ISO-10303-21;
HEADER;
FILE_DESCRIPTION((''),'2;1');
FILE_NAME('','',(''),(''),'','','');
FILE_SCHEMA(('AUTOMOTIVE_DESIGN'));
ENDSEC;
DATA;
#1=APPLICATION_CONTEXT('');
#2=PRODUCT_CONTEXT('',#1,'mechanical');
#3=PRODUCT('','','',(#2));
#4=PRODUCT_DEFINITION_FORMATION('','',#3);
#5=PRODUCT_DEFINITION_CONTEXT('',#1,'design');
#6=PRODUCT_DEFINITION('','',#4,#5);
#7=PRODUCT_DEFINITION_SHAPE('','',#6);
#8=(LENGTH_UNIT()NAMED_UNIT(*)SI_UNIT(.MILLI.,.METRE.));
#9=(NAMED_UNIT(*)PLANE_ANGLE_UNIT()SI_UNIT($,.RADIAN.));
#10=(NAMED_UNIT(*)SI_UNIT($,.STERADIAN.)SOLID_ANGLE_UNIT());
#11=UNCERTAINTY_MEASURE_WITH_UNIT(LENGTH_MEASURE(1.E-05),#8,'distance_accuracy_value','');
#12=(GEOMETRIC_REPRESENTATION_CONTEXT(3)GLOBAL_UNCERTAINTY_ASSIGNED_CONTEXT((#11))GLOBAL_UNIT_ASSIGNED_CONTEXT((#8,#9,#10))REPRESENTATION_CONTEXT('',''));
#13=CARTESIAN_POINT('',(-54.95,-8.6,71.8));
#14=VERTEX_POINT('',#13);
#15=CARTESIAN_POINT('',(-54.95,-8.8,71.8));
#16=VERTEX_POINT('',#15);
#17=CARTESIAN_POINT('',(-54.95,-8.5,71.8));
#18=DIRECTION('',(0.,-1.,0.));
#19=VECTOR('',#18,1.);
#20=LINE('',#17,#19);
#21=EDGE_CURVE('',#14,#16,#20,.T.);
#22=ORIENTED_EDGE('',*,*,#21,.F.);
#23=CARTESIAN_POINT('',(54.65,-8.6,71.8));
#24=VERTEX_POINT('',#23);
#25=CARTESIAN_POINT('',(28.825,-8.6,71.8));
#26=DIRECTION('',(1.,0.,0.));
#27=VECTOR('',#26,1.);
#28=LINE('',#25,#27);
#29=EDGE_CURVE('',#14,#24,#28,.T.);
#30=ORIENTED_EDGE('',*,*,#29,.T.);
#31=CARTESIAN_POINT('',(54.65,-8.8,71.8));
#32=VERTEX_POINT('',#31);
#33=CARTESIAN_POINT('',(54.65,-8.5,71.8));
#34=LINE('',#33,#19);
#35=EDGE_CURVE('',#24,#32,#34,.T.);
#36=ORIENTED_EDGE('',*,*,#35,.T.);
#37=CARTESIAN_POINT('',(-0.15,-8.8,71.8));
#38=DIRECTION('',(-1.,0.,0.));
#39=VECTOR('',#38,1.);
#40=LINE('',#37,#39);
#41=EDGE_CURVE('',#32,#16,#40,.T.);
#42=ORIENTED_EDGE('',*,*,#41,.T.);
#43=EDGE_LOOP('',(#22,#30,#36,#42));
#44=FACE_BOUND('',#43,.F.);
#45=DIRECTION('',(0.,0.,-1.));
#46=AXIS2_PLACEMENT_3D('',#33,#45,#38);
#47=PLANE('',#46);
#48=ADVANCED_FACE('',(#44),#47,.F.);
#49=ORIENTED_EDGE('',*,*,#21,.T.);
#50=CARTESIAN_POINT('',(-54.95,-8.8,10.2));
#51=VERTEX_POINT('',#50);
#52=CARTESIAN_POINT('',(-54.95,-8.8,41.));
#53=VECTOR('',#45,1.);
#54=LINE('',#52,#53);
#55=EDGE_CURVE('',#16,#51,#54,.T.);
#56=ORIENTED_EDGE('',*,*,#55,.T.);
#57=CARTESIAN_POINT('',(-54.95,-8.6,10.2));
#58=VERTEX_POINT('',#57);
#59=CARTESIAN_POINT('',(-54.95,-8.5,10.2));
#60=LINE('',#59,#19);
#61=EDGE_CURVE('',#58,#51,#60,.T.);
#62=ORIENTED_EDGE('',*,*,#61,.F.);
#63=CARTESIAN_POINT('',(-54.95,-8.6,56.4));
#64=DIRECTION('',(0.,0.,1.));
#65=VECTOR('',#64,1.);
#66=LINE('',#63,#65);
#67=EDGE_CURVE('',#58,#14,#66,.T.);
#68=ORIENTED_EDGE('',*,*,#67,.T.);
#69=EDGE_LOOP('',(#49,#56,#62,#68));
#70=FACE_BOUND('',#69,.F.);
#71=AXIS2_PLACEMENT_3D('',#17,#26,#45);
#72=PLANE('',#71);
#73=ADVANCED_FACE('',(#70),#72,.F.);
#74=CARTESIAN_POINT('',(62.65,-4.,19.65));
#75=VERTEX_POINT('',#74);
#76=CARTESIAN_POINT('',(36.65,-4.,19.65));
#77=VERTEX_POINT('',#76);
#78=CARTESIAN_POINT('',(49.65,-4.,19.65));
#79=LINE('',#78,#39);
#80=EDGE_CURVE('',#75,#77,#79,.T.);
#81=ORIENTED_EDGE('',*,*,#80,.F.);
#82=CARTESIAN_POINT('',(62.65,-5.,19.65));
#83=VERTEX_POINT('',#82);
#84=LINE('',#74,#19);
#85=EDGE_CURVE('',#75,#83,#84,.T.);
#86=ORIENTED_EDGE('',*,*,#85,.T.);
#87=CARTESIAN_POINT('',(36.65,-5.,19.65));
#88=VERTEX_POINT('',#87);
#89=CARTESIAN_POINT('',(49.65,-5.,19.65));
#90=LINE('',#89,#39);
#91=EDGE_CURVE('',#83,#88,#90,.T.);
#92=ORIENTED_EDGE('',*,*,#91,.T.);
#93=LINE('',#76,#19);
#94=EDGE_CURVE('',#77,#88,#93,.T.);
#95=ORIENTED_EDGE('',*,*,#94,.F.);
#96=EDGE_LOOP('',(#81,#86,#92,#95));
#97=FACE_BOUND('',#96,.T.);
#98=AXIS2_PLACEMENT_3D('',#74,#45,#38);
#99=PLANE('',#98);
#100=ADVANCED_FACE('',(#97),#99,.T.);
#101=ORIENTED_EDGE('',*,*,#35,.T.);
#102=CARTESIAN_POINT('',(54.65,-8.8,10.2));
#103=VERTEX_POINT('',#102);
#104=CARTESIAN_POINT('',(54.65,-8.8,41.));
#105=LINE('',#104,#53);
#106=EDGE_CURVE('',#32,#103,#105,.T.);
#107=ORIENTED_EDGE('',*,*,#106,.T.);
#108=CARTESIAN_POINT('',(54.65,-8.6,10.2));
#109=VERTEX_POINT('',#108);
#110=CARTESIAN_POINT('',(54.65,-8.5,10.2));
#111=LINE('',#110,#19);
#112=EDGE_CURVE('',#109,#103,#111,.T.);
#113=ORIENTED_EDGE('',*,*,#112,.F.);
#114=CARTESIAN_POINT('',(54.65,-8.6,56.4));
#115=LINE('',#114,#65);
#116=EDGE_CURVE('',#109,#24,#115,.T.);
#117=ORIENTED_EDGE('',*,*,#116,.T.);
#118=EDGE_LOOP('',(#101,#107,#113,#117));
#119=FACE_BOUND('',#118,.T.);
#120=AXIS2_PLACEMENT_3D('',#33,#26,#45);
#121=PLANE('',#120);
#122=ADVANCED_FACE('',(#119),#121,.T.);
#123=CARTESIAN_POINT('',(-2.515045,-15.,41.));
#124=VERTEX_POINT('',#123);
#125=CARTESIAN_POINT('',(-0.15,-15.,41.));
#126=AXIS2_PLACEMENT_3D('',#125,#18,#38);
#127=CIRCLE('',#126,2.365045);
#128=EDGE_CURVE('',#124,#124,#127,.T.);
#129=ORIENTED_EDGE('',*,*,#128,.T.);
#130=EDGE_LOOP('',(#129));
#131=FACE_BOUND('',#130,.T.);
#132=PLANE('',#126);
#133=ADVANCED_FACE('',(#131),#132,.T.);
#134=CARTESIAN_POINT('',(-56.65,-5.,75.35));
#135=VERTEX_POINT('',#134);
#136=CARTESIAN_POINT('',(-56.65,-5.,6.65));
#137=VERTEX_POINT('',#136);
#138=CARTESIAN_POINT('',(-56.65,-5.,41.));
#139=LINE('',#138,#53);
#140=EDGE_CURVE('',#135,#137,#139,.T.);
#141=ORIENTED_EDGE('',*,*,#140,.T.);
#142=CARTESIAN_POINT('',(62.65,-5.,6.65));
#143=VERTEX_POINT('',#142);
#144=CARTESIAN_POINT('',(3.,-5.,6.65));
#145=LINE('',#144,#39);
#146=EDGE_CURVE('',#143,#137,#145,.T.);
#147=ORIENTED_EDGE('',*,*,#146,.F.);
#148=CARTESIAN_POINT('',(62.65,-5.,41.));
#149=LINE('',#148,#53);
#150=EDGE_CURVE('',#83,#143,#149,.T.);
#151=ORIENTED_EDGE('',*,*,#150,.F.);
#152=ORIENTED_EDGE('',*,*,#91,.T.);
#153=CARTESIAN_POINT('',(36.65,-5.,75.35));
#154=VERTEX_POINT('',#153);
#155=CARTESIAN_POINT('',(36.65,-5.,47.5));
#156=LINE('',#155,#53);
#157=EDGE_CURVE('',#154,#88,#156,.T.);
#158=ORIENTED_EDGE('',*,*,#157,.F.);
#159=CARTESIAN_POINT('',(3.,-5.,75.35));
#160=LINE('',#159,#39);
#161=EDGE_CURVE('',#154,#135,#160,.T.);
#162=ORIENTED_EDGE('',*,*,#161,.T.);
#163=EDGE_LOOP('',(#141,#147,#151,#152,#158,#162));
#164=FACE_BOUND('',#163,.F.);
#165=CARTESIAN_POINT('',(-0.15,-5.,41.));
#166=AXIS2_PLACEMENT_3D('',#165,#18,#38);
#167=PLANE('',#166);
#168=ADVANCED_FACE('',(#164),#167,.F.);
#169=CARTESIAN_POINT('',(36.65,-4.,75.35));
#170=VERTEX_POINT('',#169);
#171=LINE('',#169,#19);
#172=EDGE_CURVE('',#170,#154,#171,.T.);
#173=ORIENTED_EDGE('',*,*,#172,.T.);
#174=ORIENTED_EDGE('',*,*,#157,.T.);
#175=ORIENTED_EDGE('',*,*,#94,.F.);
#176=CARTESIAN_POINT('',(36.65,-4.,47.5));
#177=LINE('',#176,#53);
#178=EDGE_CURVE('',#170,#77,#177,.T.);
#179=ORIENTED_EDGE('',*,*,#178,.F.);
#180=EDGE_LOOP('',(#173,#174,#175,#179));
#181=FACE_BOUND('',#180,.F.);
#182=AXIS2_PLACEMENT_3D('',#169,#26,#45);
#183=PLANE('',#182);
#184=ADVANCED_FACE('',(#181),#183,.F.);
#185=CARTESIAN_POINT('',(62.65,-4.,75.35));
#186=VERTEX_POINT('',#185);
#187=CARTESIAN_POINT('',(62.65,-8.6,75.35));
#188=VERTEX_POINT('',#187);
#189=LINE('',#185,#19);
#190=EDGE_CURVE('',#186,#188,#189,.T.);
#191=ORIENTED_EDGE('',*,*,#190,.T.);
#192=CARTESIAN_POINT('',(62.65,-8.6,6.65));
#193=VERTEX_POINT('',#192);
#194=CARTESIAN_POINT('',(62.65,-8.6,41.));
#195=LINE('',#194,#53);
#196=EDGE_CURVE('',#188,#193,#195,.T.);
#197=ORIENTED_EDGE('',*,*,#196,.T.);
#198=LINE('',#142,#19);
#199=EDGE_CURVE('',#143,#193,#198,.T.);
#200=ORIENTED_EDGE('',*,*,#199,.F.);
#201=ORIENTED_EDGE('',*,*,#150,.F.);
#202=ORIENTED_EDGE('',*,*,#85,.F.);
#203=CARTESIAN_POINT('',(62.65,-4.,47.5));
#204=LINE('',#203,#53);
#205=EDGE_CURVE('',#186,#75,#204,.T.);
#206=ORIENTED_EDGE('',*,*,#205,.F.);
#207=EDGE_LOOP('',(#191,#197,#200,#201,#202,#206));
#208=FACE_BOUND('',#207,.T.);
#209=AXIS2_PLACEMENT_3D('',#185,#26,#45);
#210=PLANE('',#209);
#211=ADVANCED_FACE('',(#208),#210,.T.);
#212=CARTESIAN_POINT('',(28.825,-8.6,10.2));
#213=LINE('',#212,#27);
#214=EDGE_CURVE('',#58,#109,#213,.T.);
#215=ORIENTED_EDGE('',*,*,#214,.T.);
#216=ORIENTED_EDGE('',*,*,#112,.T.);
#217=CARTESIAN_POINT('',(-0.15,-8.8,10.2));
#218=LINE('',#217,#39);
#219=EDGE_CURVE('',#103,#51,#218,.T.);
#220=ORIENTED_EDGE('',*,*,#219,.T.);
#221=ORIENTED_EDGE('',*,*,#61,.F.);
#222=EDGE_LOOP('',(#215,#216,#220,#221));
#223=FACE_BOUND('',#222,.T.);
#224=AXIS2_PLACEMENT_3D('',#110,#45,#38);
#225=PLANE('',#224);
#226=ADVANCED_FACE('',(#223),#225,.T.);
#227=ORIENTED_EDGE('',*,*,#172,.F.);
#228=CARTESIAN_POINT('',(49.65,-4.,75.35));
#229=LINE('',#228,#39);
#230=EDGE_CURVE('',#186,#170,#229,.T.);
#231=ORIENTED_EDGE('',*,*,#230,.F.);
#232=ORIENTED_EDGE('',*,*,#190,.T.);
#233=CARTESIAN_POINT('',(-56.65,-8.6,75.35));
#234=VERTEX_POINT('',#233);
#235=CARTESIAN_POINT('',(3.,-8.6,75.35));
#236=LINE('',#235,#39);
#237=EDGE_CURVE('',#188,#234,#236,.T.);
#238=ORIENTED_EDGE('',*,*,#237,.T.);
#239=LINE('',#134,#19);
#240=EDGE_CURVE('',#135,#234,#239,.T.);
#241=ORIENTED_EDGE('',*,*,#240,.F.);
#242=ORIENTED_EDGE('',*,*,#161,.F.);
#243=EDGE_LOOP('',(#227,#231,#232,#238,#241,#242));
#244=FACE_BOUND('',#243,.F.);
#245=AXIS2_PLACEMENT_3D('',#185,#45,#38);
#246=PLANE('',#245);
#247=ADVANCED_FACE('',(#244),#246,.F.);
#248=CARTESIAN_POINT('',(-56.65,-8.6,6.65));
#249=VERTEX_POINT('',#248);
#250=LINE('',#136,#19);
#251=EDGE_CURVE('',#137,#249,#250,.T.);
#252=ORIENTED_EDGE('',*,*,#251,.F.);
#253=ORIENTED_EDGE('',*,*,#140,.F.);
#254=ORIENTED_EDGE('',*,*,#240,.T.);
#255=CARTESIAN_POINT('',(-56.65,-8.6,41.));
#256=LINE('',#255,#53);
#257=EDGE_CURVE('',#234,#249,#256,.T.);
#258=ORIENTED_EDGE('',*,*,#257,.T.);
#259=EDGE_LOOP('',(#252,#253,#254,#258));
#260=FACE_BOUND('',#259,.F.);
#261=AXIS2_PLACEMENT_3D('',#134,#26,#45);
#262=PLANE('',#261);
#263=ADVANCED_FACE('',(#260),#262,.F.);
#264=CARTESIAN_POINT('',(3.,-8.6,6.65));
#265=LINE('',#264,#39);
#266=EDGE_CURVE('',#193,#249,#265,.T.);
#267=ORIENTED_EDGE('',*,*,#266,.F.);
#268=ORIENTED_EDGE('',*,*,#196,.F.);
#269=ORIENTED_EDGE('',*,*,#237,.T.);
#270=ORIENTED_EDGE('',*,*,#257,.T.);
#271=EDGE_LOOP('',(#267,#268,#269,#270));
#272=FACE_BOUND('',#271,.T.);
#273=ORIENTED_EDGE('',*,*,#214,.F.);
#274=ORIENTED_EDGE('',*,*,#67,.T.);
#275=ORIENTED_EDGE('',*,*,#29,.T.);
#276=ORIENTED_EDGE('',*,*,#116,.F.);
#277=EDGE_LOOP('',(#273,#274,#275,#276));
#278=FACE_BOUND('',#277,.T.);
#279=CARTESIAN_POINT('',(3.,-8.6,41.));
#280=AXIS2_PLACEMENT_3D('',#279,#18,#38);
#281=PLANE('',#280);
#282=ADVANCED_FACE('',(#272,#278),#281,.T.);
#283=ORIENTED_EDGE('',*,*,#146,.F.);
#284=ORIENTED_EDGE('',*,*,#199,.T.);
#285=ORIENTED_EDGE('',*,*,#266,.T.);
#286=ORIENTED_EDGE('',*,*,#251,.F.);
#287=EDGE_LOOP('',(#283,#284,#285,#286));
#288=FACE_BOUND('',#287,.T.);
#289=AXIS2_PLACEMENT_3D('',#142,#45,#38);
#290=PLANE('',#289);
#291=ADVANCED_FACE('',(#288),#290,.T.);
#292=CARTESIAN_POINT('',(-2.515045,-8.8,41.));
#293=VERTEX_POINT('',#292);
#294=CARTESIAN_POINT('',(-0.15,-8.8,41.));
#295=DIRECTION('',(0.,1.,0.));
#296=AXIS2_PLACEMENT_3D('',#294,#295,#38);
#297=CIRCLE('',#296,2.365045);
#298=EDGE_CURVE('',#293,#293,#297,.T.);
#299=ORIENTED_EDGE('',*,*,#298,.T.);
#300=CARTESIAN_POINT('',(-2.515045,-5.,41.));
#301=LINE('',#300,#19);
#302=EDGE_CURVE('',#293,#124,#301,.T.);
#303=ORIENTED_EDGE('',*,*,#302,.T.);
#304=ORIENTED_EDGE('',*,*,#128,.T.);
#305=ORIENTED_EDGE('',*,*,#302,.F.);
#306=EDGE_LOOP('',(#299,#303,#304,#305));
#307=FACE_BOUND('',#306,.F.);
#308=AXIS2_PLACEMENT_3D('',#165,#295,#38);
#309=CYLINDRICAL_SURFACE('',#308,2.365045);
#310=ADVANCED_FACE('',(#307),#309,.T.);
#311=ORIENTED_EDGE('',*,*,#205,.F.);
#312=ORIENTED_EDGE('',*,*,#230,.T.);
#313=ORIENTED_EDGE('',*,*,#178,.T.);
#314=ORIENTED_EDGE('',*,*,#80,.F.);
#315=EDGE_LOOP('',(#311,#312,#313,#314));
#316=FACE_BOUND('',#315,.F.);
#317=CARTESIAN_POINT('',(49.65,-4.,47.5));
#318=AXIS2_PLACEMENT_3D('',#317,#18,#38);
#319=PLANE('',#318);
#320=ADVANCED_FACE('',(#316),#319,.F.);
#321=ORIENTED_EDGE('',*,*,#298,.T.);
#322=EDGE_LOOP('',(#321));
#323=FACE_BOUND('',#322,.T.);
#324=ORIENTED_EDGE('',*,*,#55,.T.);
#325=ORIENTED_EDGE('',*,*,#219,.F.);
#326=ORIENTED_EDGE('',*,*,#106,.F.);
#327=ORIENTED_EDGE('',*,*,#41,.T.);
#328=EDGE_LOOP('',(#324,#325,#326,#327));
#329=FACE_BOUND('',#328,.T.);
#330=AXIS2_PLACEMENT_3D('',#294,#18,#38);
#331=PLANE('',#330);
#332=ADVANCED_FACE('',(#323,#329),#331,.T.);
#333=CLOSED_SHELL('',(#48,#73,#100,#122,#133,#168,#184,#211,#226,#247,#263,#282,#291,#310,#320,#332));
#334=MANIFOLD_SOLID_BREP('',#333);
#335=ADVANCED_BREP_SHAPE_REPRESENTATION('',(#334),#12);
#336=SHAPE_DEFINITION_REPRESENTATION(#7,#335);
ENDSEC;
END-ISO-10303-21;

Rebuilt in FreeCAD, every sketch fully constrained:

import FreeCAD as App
import Part
import Sketcher

V = App.Vector


def add_polygon(sketch, points):
    """Adds a closed chain of lines whose ends are joined by coincident constraints."""
    first, n = sketch.GeometryCount, len(points)
    for a, b in zip(points, points[1:] + points[:1]):
        sketch.addGeometry(Part.LineSegment(App.Vector(*a, 0), App.Vector(*b, 0)), False)
    for i in range(n):
        sketch.addConstraint(Sketcher.Constraint("Coincident", first + i, 2, first + (i + 1) % n, 1))

doc = App.newDocument("Part")
body = doc.addObject("PartDesign::Body", "Body")

# Sketch on XZ plane
sketch1 = body.newObject("Sketcher::SketchObject", "Sketch")
sketch1.AttachmentSupport = (doc.getObject("XZ_Plane"), [""])
sketch1.MapMode = "FlatFace"
add_polygon(sketch1, [(-60, 34), (-60, -34), (60, -34), (60, 34)])  # lines 0-3
sketch1.addConstraint(Sketcher.Constraint("Vertical", 0))
sketch1.addConstraint(Sketcher.Constraint("Horizontal", 1))
sketch1.addConstraint(Sketcher.Constraint("Vertical", 2))
sketch1.addConstraint(Sketcher.Constraint("Horizontal", 3))
sketch1.addConstraint(Sketcher.Constraint("Symmetric", 0, 2, 2, 2, -1, 1))
sketch1.addConstraint(Sketcher.Constraint("DistanceX", 1, 1, 1, 2, 119.3))
sketch1.addConstraint(Sketcher.Constraint("DistanceY", 0, 2, 0, 1, 68.7))
pad1 = body.newObject("PartDesign::Pad", "Pad")
pad1.Profile = sketch1
pad1.Length = 3.6

# Sketch on XZ plane
sketch2 = body.newObject("Sketcher::SketchObject", "Sketch001")
sketch2.AttachmentSupport = (doc.getObject("XZ_Plane"), [""])
sketch2.MapMode = "FlatFace"
sketch2.AttachmentOffset = App.Placement(V(0, 0, 3.5), App.Rotation())
add_polygon(sketch2, [(-52, 31), (-52, -31), (58, -31), (58, 31)])  # lines 0-3
sketch2.addConstraint(Sketcher.Constraint("Vertical", 0))
sketch2.addConstraint(Sketcher.Constraint("Horizontal", 1))
sketch2.addConstraint(Sketcher.Constraint("Vertical", 2))
sketch2.addConstraint(Sketcher.Constraint("Horizontal", 3))
sketch2.addConstraint(Sketcher.Constraint("DistanceX", 1, 1, 1, 2, 109.6))
sketch2.addConstraint(Sketcher.Constraint("DistanceY", 0, 2, 0, 1, 61.6))
sketch2.addConstraint(Sketcher.Constraint("DistanceY", 0, 2, -1, 1, 30.8))
sketch2.addConstraint(Sketcher.Constraint("DistanceX", 0, 2, -1, 1, 51.65))
pad2 = body.newObject("PartDesign::Pad", "Pad001")
pad2.Profile = sketch2
pad2.Length = 0.3

# Sketch on XZ plane
sketch3 = body.newObject("Sketcher::SketchObject", "Sketch002")
sketch3.AttachmentSupport = (doc.getObject("XZ_Plane"), [""])
sketch3.MapMode = "FlatFace"
sketch3.AttachmentOffset = App.Placement(V(0, 0, -1), App.Rotation())
add_polygon(sketch3, [(-60, 21), (-60, -34), (-34, -34), (-34, 21)])  # lines 0-3
sketch3.addConstraint(Sketcher.Constraint("Vertical", 0))
sketch3.addConstraint(Sketcher.Constraint("Horizontal", 1))
sketch3.addConstraint(Sketcher.Constraint("Vertical", 2))
sketch3.addConstraint(Sketcher.Constraint("Horizontal", 3))
sketch3.addConstraint(Sketcher.Constraint("DistanceX", 1, 1, 1, 2, 26.0))
sketch3.addConstraint(Sketcher.Constraint("DistanceY", 0, 2, 0, 1, 55.7))
sketch3.addConstraint(Sketcher.Constraint("DistanceX", 0, 2, -1, 1, 59.65))
sketch3.addConstraint(Sketcher.Constraint("DistanceY", 0, 2, -1, 1, 34.35))
pad3 = body.newObject("PartDesign::Pad", "Pad002")
pad3.Profile = sketch3
pad3.Length = 1

# Sketch on XZ plane
sketch4 = body.newObject("Sketcher::SketchObject", "Sketch003")
sketch4.AttachmentSupport = (doc.getObject("XZ_Plane"), [""])
sketch4.MapMode = "FlatFace"
sketch4.addGeometry(Part.Circle(V(3.1, 0, 0), V(0, 0, 1), 2.4), False)
sketch4.addConstraint(Sketcher.Constraint("PointOnObject", 0, 3, -1))
sketch4.addConstraint(Sketcher.Constraint("Diameter", 0, 4.73009))
sketch4.addConstraint(Sketcher.Constraint("DistanceX", -1, 1, 0, 3, 3.15))
pad4 = body.newObject("PartDesign::Pad", "Pad003")
pad4.Profile = sketch4
pad4.Length = 10
body2 = doc.addObject("PartDesign::Body", "Body001")
doc.recompute()

body.Placement = App.Placement(V(3, -5, 41), App.Rotation(V(0, 1, 0), 180))
boolean = body2.newObject("PartDesign::Boolean", "Boolean")
boolean.Type = "Fuse"
boolean.addObjects([body])

doc.recompute()
